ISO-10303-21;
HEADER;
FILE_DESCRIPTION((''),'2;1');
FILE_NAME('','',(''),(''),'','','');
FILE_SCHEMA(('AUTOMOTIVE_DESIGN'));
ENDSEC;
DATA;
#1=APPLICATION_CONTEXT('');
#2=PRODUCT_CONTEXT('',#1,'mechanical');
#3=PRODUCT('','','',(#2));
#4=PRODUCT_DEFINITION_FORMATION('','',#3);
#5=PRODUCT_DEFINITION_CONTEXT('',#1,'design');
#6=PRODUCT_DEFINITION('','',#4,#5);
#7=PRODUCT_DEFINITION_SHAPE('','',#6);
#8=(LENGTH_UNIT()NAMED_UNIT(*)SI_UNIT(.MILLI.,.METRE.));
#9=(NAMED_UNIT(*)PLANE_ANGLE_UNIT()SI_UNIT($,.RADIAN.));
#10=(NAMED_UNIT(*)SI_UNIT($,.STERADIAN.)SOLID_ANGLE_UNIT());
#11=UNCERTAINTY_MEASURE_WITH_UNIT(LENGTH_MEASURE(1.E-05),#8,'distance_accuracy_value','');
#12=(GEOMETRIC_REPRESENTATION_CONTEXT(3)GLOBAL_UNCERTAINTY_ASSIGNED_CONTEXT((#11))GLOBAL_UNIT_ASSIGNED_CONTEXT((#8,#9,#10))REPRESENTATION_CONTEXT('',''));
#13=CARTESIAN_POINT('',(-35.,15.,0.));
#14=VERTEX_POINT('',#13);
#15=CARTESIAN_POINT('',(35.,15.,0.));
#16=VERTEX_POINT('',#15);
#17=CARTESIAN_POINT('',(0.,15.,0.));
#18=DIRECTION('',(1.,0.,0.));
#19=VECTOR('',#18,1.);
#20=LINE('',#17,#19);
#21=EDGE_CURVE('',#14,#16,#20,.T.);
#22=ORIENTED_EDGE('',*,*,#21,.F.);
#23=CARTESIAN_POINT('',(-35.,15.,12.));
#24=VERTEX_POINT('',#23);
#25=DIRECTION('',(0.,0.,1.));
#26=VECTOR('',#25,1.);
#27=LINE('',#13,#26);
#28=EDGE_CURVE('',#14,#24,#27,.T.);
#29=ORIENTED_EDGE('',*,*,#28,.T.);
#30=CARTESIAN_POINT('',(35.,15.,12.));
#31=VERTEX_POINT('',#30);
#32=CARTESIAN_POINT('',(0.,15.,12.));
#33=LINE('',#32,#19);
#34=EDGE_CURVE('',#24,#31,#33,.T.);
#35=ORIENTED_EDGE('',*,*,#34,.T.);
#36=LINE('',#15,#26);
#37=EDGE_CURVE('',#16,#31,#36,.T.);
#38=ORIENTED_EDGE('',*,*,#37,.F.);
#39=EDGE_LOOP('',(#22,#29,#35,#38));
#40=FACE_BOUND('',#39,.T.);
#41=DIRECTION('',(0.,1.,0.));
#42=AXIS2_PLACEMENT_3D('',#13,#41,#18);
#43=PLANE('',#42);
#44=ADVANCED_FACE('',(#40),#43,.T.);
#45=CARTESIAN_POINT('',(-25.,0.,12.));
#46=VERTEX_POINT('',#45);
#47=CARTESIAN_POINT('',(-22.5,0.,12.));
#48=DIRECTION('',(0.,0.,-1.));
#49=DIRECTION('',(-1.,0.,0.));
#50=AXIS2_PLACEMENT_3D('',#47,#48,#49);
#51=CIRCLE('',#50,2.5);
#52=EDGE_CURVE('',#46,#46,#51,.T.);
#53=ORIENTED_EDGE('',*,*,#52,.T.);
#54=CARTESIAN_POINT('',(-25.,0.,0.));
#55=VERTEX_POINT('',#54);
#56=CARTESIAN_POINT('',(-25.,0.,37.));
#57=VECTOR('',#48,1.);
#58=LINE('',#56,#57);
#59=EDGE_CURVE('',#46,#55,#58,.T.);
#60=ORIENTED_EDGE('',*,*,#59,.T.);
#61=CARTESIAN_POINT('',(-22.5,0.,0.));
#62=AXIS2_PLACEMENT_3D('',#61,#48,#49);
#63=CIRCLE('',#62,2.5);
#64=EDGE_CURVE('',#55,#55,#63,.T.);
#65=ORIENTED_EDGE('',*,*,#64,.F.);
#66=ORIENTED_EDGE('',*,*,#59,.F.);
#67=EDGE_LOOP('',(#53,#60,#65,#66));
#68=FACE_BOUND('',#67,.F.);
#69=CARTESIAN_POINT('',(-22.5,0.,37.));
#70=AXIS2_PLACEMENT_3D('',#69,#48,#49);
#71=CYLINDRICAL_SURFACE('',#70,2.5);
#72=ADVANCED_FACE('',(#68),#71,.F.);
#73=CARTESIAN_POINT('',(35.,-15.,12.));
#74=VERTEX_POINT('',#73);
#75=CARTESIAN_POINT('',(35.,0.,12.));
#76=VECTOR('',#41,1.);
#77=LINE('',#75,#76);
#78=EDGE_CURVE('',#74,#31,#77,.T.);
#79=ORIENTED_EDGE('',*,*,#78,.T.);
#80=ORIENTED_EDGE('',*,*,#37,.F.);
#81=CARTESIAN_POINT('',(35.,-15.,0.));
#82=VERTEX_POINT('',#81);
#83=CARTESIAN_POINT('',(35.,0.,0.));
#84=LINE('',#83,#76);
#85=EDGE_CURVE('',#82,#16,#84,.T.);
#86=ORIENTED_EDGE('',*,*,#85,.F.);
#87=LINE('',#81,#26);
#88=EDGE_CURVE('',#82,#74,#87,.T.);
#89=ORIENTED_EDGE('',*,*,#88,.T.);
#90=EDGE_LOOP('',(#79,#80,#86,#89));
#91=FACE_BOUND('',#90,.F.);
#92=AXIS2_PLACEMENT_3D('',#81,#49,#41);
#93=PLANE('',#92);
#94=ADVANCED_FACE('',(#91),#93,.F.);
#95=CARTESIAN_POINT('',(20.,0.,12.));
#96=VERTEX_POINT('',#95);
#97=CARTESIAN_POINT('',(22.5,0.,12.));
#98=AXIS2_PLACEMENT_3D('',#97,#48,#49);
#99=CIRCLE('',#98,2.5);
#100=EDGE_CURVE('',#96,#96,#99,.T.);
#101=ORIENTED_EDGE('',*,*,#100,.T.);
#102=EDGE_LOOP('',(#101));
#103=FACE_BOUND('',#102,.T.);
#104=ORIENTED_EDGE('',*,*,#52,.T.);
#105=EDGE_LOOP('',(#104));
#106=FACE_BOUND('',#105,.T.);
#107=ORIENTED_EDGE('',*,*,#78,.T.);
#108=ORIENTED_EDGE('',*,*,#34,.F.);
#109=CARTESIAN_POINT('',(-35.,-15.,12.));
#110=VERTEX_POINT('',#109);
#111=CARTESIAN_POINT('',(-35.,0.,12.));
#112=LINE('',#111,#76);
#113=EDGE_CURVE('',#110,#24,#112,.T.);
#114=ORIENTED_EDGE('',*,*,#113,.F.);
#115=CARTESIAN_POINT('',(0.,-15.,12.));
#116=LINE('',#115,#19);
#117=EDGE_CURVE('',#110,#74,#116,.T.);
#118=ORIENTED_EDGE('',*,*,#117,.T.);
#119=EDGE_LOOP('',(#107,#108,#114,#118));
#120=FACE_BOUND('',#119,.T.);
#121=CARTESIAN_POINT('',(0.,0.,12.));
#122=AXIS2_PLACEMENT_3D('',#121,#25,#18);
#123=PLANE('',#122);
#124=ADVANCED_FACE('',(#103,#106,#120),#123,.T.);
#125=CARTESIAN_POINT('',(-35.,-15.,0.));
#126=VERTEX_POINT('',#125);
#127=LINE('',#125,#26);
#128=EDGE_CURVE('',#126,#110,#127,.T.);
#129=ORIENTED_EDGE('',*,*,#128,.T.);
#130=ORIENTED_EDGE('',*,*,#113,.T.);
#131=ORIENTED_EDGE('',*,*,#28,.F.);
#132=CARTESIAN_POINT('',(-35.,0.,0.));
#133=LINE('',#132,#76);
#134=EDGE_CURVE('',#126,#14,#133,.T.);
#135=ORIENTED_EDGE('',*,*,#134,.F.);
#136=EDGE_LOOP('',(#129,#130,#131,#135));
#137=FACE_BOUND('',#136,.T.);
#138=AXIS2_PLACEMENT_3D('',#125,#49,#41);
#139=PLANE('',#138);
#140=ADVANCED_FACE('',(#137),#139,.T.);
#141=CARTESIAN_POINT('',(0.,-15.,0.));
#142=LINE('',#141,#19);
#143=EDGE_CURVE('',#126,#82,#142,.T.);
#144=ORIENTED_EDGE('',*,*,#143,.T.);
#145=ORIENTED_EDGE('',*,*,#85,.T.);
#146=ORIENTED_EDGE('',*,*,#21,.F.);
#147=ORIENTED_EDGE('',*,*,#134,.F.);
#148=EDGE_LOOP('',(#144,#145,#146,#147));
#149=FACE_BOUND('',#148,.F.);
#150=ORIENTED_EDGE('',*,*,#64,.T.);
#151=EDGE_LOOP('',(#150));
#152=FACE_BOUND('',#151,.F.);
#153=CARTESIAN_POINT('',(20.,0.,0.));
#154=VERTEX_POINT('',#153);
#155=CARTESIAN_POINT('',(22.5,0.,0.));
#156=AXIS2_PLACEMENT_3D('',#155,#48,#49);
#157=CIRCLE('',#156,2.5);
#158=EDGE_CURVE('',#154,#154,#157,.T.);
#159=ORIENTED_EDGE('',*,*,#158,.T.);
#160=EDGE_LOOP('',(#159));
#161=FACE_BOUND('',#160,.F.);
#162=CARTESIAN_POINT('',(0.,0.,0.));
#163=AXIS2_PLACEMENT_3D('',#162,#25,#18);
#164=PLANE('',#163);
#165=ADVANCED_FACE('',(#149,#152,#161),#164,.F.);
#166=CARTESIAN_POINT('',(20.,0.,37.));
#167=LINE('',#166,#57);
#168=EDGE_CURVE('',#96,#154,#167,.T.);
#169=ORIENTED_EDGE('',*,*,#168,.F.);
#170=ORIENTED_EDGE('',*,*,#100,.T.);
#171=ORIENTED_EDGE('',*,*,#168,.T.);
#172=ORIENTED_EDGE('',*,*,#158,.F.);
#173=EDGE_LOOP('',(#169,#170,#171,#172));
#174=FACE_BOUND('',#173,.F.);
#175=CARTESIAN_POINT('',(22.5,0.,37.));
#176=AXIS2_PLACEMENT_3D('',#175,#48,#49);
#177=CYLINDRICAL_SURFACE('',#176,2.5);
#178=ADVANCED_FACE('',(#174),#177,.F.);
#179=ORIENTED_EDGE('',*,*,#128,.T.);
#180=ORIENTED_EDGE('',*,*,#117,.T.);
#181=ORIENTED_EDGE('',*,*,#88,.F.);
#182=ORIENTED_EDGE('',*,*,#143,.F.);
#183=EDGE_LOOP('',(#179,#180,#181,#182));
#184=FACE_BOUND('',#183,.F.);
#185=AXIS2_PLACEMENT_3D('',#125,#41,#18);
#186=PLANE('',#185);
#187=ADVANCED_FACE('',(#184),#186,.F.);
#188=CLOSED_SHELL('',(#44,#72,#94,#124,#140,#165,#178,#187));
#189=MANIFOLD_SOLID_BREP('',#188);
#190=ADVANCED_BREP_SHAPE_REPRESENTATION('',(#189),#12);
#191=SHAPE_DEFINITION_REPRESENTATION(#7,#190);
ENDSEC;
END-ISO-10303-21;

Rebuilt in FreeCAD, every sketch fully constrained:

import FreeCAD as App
import Part
import Sketcher
from FreeCAD import Vector
Q = App.Units.Quantity

doc = App.newDocument("Part")
body = doc.addObject("PartDesign::Body", "Body")

sketch1 = doc.addObject("Sketcher::SketchObject", "Sketch")
body.addObject(sketch1)
sketch1.AttachmentSupport = (doc.XY_Plane, [""])
sketch1.MapMode = "FlatFace"
sketch1.addGeometry([
    Part.LineSegment(Vector(-35, 15, 0), Vector(-35, -15, 0)),
    Part.LineSegment(Vector(-35, -15, 0), Vector(35, -15, 0)),
    Part.LineSegment(Vector(35, -15, 0), Vector(35, 15, 0)),
    Part.LineSegment(Vector(35, 15, 0), Vector(-35, 15, 0)),
], False)
sketch1.addConstraint([
    Sketcher.Constraint("Coincident", 0, 2, 1, 1),
    Sketcher.Constraint("Coincident", 1, 2, 2, 1),
    Sketcher.Constraint("Coincident", 2, 2, 3, 1),
    Sketcher.Constraint("Coincident", 3, 2, 0, 1),
    Sketcher.Constraint("Vertical", 0),
    Sketcher.Constraint("Horizontal", 1),
    Sketcher.Constraint("Vertical", 2),
    Sketcher.Constraint("Horizontal", 3),
    Sketcher.Constraint("Symmetric", 0, 2, 2, 2, -1, 1),
    Sketcher.Constraint("DistanceX", 1, 1, 1, 2, Q("70 mm")),
    Sketcher.Constraint("DistanceY", 0, 2, 0, 1, Q("30 mm")),
])
pad1 = doc.addObject("PartDesign::Pad", "Pad")
body.addObject(pad1)
pad1.Profile = sketch1
pad1.Length = 12

sketch2 = doc.addObject("Sketcher::SketchObject", "Sketch001")
body.addObject(sketch2)
sketch2.AttachmentSupport = (doc.XY_Plane, [""])
sketch2.MapMode = "FlatFace"
sketch2.AttachmentOffset = App.Placement(Vector(0, 0, 12), App.Rotation())
sketch2.addGeometry([
    Part.Circle(Vector(-22.5, 0, 0), Vector(0, 0, 1), 2.5),
    Part.Circle(Vector(22.5, 0, 0), Vector(0, 0, 1), 2.5),
], False)
sketch2.addConstraint([
    Sketcher.Constraint("Equal", 0, 1),
    Sketcher.Constraint("Symmetric", 0, 3, 1, 3, -1, 1),
    Sketcher.Constraint("PointOnObject", 0, 3, -1),
    Sketcher.Constraint("Diameter", 0, Q("5 mm")),
    Sketcher.Constraint("DistanceX", 0, 3, 1, 3, Q("45 mm")),
])
doc.recompute()
hole = doc.addObject("PartDesign::Hole", "Hole")
body.addObject(hole)
hole.Profile = sketch2
hole.ThreadType = "None"
hole.Diameter = 5
hole.DepthType = "Dimension"
hole.Depth = 25
hole.DrillPoint = "Flat"

doc.recompute()
